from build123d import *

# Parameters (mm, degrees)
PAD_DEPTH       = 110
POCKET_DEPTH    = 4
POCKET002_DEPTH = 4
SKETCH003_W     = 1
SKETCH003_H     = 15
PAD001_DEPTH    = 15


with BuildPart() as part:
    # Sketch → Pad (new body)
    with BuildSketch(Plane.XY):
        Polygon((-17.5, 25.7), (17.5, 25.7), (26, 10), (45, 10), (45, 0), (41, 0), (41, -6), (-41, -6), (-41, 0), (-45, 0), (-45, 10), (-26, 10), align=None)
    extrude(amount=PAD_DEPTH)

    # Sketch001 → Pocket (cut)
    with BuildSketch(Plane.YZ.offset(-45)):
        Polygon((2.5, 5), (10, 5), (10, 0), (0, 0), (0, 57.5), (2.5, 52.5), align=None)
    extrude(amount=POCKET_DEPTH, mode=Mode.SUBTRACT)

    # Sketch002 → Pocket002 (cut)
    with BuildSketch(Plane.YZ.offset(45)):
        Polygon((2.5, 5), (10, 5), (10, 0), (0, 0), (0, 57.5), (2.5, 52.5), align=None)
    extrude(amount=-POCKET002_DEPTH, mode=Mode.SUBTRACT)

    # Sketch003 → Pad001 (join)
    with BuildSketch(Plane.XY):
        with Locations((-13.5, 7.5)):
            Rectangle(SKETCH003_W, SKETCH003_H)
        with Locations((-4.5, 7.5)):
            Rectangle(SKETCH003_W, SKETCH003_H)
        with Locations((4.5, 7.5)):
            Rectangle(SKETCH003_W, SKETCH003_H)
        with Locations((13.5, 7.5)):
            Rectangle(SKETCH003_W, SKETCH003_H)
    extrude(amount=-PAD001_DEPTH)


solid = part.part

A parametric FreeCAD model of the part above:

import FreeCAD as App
import Part
import Sketcher
from FreeCAD import Vector


def add_polygon(sketch, points):
    """Adds a closed chain of lines whose ends are joined by coincident constraints."""
    first, n = sketch.GeometryCount, len(points)
    for a, b in zip(points, points[1:] + points[:1]):
        sketch.addGeometry(Part.LineSegment(App.Vector(*a, 0), App.Vector(*b, 0)), False)
    for i in range(n):
        sketch.addConstraint(Sketcher.Constraint("Coincident", first + i, 2, first + (i + 1) % n, 1))

doc = App.newDocument("Part")
body = doc.addObject("PartDesign::Body", "Body")

# Sketch on XY plane
sketch1 = doc.addObject("Sketcher::SketchObject", "Sketch")
body.addObject(sketch1)
sketch1.AttachmentSupport = (doc.XY_Plane, [""])
sketch1.MapMode = "FlatFace"
add_polygon(sketch1, [(17.5, 25.7), (-17.5, 25.7), (-26, 10), (-45, 10), (-45, 0), (-41, 0), (-41, -6), (41, -6), (41, 0), (45, 0), (45, 10), (26, 10)])  # lines 0-11
sketch1.addConstraint(Sketcher.Constraint("Horizontal", 0))
sketch1.addConstraint(Sketcher.Constraint("Horizontal", 2))
sketch1.addConstraint(Sketcher.Constraint("Vertical", 3))
sketch1.addConstraint(Sketcher.Constraint("Horizontal", 4))
sketch1.addConstraint(Sketcher.Constraint("Vertical", 5))
sketch1.addConstraint(Sketcher.Constraint("Horizontal", 6))
sketch1.addConstraint(Sketcher.Constraint("Vertical", 7))
sketch1.addConstraint(Sketcher.Constraint("Horizontal", 8))
sketch1.addConstraint(Sketcher.Constraint("Vertical", 9))
sketch1.addConstraint(Sketcher.Constraint("Horizontal", 10))
sketch1.addConstraint(Sketcher.Constraint("Symmetric", 4, 2, 7, 2, -1, 1))
sketch1.addConstraint(Sketcher.Constraint("Symmetric", 3, 2, 8, 2, -2))
sketch1.addConstraint(Sketcher.Constraint("Symmetric", 1, 2, 10, 2, -2))
sketch1.addConstraint(Sketcher.Constraint("Equal", 1, 11))
sketch1.addConstraint(Sketcher.Constraint("DistanceX", 0, 2, 0, 1, 35.0))
sketch1.addConstraint(Sketcher.Constraint("DistanceX", 2, 2, 2, 1, 19.0))
sketch1.addConstraint(Sketcher.Constraint("DistanceX", 4, 1, 4, 2, 4.0))
sketch1.addConstraint(Sketcher.Constraint("DistanceX", 6, 1, 6, 2, 82.0))
sketch1.addConstraint(Sketcher.Constraint("DistanceY", 3, 2, 3, 1, 10.0))
sketch1.addConstraint(Sketcher.Constraint("DistanceY", 5, 2, 5, 1, 6.0))
sketch1.addConstraint(Sketcher.Constraint("DistanceY", -1, 1, 0, 2, 25.7))
pad1 = doc.addObject("PartDesign::Pad", "Pad")
body.addObject(pad1)
pad1.Profile = sketch1
pad1.Length = 110

# Sketch on YZ plane
sketch2 = doc.addObject("Sketcher::SketchObject", "Sketch001")
body.addObject(sketch2)
sketch2.AttachmentSupport = (doc.YZ_Plane, [""])
sketch2.MapMode = "FlatFace"
sketch2.AttachmentOffset = App.Placement(Vector(0, 0, -45), App.Rotation())
add_polygon(sketch2, [(10, 5), (2, 5), (2, 52), (0, 58), (0, 0), (10, 0)])  # lines 0-5
sketch2.addConstraint(Sketcher.Constraint("Horizontal", 0))
sketch2.addConstraint(Sketcher.Constraint("Vertical", 1))
sketch2.addConstraint(Sketcher.Constraint("Vertical", 3))
sketch2.addConstraint(Sketcher.Constraint("Horizontal", 4))
sketch2.addConstraint(Sketcher.Constraint("Vertical", 5))
sketch2.addConstraint(Sketcher.Constraint("Coincident", 3, 2, -1, 1))
sketch2.addConstraint(Sketcher.Constraint("DistanceX", 4, 1, 4, 2, 10.0))
sketch2.addConstraint(Sketcher.Constraint("DistanceY", 5, 1, 5, 2, 5.0))
sketch2.addConstraint(Sketcher.Constraint("DistanceX", 0, 2, 0, 1, 7.5))
sketch2.addConstraint(Sketcher.Constraint("DistanceY", 1, 1, 1, 2, 47.5))
sketch2.addConstraint(Sketcher.Constraint("DistanceY", 3, 2, 3, 1, 57.5))
pocket1 = doc.addObject("PartDesign::Pocket", "Pocket")
body.addObject(pocket1)
pocket1.Profile = sketch2
pocket1.Length = 4
pocket1.Reversed = True

# Sketch on YZ plane
sketch3 = doc.addObject("Sketcher::SketchObject", "Sketch002")
body.addObject(sketch3)
sketch3.AttachmentSupport = (doc.YZ_Plane, [""])
sketch3.MapMode = "FlatFace"
sketch3.AttachmentOffset = App.Placement(Vector(0, 0, 45), App.Rotation())
add_polygon(sketch3, [(10, 5), (2, 5), (2, 52), (0, 58), (0, 0), (10, 0)])  # lines 0-5
sketch3.addConstraint(Sketcher.Constraint("Horizontal", 0))
sketch3.addConstraint(Sketcher.Constraint("Vertical", 1))
sketch3.addConstraint(Sketcher.Constraint("Vertical", 3))
sketch3.addConstraint(Sketcher.Constraint("Horizontal", 4))
sketch3.addConstraint(Sketcher.Constraint("Vertical", 5))
sketch3.addConstraint(Sketcher.Constraint("Coincident", 3, 2, -1, 1))
sketch3.addConstraint(Sketcher.Constraint("DistanceX", 4, 1, 4, 2, 10.0))
sketch3.addConstraint(Sketcher.Constraint("DistanceY", 5, 1, 5, 2, 5.0))
sketch3.addConstraint(Sketcher.Constraint("DistanceX", 0, 2, 0, 1, 7.5))
sketch3.addConstraint(Sketcher.Constraint("DistanceY", 1, 1, 1, 2, 47.5))
sketch3.addConstraint(Sketcher.Constraint("DistanceY", 3, 2, 3, 1, 57.5))
pocket2 = doc.addObject("PartDesign::Pocket", "Pocket001")
body.addObject(pocket2)
pocket2.Profile = sketch3
pocket2.Length = 4

# Sketch on XY plane
sketch4 = doc.addObject("Sketcher::SketchObject", "Sketch003")
body.addObject(sketch4)
sketch4.AttachmentSupport = (doc.XY_Plane, [""])
sketch4.MapMode = "FlatFace"
add_polygon(sketch4, [(-14, 15), (-14, 0), (-13, 0), (-13, 15)])  # lines 0-3
add_polygon(sketch4, [(-5, 15), (-5, 0), (-4, 0), (-4, 15)])  # lines 4-7
add_polygon(sketch4, [(4, 15), (4, 0), (5, 0), (5, 15)])  # lines 8-11
add_polygon(sketch4, [(13, 15), (13, 0), (14, 0), (14, 15)])  # lines 12-15
sketch4.addConstraint(Sketcher.Constraint("Vertical", 0))
sketch4.addConstraint(Sketcher.Constraint("Horizontal", 1))
sketch4.addConstraint(Sketcher.Constraint("Vertical", 2))
sketch4.addConstraint(Sketcher.Constraint("Horizontal", 3))
sketch4.addConstraint(Sketcher.Constraint("Vertical", 4))
sketch4.addConstraint(Sketcher.Constraint("Horizontal", 5))
sketch4.addConstraint(Sketcher.Constraint("Vertical", 6))
sketch4.addConstraint(Sketcher.Constraint("Horizontal", 7))
sketch4.addConstraint(Sketcher.Constraint("Vertical", 8))
sketch4.addConstraint(Sketcher.Constraint("Horizontal", 9))
sketch4.addConstraint(Sketcher.Constraint("Vertical", 10))
sketch4.addConstraint(Sketcher.Constraint("Horizontal", 11))
sketch4.addConstraint(Sketcher.Constraint("Vertical", 12))
sketch4.addConstraint(Sketcher.Constraint("Horizontal", 13))
sketch4.addConstraint(Sketcher.Constraint("Vertical", 14))
sketch4.addConstraint(Sketcher.Constraint("Horizontal", 15))
sketch4.addConstraint(Sketcher.Constraint("Symmetric", 5, 2, 8, 2, -1, 1))
sketch4.addConstraint(Sketcher.Constraint("Symmetric", 1, 2, 12, 2, -1, 1))
sketch4.addConstraint(Sketcher.Constraint("Symmetric", 4, 2, 9, 2, -2))
sketch4.addConstraint(Sketcher.Constraint("Symmetric", 0, 2, 13, 2, -2))
sketch4.addConstraint(Sketcher.Constraint("Horizontal", 3, 2, 6, 2))
sketch4.addConstraint(Sketcher.Constraint("Horizontal", 7, 2, 10, 2))
sketch4.addConstraint(Sketcher.Constraint("Horizontal", 11, 2, 14, 2))
sketch4.addConstraint(Sketcher.Constraint("Equal", 3, 5))
sketch4.addConstraint(Sketcher.Constraint("DistanceX", 1, 1, 1, 2, 1.0))
sketch4.addConstraint(Sketcher.Constraint("DistanceY", 0, 2, 0, 1, 15.0))
sketch4.addConstraint(Sketcher.Constraint("DistanceX", 0, 2, -1, 1, 14.0))
sketch4.addConstraint(Sketcher.Constraint("DistanceX", 4, 2, -1, 1, 5.0))
pad2 = doc.addObject("PartDesign::Pad", "Pad001")
body.addObject(pad2)
pad2.Profile = sketch4
pad2.Length = 15
pad2.Reversed = True

doc.recompute()
